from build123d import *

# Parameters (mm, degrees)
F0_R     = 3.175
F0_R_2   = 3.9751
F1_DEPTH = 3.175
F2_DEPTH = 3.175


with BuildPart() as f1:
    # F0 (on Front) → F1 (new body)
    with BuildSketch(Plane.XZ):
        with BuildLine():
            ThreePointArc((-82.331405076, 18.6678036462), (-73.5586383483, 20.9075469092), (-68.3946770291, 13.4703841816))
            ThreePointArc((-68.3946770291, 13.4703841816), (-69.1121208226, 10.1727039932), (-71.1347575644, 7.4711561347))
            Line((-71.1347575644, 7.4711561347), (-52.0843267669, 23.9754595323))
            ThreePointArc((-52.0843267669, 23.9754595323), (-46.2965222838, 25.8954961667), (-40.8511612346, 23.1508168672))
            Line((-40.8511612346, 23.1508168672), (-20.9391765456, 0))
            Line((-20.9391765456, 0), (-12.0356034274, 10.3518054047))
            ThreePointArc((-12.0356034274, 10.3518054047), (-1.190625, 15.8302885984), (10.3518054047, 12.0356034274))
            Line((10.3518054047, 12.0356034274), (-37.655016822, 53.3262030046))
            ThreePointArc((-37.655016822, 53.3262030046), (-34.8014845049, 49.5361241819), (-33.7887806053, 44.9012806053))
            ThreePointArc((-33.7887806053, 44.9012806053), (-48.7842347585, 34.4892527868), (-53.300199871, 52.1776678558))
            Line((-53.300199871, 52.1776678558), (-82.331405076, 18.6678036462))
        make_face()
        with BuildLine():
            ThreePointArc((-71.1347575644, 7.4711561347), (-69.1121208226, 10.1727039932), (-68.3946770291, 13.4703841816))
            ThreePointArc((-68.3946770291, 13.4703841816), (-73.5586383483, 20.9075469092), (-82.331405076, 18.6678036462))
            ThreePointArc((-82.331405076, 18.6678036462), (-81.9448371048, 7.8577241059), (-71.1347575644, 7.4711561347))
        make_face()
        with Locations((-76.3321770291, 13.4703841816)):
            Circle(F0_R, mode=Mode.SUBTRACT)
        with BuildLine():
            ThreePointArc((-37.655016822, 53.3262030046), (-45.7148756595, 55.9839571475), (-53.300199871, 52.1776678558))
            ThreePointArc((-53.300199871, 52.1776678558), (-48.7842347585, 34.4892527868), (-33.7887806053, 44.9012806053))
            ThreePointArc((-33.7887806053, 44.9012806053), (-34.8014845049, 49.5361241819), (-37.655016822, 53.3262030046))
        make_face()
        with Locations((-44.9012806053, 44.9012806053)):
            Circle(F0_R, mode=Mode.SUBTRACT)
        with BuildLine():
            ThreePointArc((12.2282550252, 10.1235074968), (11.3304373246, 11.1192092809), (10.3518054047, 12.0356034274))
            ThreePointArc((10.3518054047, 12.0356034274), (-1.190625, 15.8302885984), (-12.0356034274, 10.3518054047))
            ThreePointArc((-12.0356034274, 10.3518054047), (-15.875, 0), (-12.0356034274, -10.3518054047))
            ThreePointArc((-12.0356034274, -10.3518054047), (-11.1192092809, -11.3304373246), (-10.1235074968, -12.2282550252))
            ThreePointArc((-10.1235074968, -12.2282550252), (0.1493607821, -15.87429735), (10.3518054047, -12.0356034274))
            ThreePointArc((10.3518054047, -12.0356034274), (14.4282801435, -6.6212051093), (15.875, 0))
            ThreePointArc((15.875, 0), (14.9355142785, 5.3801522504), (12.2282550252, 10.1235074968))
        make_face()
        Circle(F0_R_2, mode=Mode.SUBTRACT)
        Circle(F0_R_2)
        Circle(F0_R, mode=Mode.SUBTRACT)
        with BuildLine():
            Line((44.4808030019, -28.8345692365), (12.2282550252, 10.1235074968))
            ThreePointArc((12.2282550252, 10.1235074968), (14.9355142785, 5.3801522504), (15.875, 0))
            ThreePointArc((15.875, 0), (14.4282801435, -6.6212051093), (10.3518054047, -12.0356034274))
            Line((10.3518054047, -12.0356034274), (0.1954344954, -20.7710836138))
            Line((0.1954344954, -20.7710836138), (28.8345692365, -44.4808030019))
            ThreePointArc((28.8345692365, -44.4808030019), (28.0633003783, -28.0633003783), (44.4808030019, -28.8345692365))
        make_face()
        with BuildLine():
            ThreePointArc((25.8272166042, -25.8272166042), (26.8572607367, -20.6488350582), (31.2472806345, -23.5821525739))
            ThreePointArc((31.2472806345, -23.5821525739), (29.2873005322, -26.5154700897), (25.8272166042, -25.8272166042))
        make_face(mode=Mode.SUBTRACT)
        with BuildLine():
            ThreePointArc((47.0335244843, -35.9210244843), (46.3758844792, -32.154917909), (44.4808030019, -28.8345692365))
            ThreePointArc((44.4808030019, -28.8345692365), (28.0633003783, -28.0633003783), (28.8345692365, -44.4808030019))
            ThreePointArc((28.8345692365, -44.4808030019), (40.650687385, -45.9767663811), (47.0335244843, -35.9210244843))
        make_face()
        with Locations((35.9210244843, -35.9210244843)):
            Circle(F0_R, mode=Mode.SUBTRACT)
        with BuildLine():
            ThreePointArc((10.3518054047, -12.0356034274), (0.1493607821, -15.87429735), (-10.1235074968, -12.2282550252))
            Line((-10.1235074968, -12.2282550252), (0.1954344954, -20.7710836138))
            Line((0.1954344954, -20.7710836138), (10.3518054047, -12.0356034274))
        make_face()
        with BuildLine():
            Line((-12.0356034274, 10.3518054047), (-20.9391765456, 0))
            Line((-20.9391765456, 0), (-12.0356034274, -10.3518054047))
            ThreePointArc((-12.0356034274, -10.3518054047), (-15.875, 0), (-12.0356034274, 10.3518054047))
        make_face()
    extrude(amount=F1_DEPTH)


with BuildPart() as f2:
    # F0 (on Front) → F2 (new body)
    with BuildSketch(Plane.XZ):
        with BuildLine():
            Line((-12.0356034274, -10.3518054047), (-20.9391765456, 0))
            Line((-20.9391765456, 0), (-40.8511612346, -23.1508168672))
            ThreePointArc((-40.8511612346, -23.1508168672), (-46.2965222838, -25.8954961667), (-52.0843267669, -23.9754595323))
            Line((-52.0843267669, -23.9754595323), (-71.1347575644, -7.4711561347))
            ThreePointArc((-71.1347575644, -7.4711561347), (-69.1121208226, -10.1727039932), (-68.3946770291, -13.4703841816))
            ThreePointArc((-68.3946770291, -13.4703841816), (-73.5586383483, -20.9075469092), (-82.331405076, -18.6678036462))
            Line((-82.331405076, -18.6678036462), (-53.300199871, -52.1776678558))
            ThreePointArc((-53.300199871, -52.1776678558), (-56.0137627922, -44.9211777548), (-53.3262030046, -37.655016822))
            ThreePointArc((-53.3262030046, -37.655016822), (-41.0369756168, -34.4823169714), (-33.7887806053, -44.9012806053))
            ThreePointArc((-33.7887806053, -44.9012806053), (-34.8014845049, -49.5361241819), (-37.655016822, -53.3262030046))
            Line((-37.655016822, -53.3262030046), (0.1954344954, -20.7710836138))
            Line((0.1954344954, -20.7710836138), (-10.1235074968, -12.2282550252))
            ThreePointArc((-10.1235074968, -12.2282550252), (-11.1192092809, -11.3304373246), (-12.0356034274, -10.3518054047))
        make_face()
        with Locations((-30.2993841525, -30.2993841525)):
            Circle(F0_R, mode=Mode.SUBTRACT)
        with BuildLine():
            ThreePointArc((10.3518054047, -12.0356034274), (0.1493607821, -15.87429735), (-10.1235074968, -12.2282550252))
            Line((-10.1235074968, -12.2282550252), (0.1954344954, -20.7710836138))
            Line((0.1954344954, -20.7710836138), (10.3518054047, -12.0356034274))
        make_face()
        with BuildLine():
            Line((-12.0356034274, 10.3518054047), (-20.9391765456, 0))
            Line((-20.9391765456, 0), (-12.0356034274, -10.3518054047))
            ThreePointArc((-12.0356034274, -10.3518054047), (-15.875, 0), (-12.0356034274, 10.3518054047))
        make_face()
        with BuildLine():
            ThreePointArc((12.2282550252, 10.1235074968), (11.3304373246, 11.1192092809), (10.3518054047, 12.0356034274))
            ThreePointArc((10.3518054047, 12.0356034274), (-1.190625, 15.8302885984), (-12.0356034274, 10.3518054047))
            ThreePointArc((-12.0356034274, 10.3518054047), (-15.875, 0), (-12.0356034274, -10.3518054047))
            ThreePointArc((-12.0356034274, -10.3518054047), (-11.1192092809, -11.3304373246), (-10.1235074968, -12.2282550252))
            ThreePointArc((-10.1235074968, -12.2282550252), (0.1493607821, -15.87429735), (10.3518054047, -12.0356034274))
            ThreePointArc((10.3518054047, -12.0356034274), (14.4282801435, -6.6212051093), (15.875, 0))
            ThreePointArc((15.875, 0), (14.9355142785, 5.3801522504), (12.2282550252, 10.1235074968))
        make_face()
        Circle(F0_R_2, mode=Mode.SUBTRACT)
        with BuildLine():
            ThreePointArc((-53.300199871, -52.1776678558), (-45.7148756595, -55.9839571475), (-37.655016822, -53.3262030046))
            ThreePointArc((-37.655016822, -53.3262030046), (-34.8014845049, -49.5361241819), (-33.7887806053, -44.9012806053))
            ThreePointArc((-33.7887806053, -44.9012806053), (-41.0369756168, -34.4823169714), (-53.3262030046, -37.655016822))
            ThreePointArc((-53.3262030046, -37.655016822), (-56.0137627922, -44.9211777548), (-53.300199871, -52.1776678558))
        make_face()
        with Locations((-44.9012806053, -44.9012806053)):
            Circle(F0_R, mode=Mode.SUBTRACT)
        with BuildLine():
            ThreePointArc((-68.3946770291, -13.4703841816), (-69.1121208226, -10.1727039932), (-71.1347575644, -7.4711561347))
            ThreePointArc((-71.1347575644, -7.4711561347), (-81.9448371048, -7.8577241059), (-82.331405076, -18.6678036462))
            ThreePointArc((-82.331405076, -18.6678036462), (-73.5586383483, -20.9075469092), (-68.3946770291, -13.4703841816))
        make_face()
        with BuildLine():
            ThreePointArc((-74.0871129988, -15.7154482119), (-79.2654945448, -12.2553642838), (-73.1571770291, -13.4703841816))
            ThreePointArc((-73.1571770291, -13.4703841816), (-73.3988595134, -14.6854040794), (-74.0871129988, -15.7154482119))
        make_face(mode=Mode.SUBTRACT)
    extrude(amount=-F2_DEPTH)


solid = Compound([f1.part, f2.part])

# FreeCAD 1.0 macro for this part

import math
import FreeCAD as App
import Part
import Sketcher

V = App.Vector
Q = App.Units.Quantity

doc = App.newDocument("Part")
body = doc.addObject("PartDesign::Body", "Body")

sketch1 = body.newObject("Sketcher::SketchObject", "Sketch")
sketch1.AttachmentSupport = (doc.getObject("XZ_Plane"), [""])
sketch1.MapMode = "FlatFace"
sketch1.addGeometry(Part.LineSegment(V(-71.1, 7.5, 0), V(-52.1, 24, 0)), False)
sketch1.addGeometry(Part.ArcOfCircle(Part.Circle(V(-46.9, 18, 0), V(0, 0, 1), 8), math.radians(41), math.radians(131)), False)
sketch1.addGeometry(Part.LineSegment(V(-40.9, 23.2, 0), V(-20.9, 0, 0)), False)
sketch1.addGeometry(Part.LineSegment(V(-20.9, 0, 0), V(-12, -10.4, 0)), False)
sketch1.addGeometry(Part.ArcOfCircle(Part.Circle(V(0, 0, 0), V(0, 0, 1), 15.9), math.radians(-139.3), math.radians(-129.62)), False)
sketch1.addGeometry(Part.LineSegment(V(-10.1, -12.2, 0), V(0.2, -20.8, 0)), False)
sketch1.addGeometry(Part.LineSegment(V(0.2, -20.8, 0), V(28.8, -44.5, 0)), False)
sketch1.addGeometry(Part.ArcOfCircle(Part.Circle(V(35.9, -35.9, 0), V(0, 0, 1), 11.1), math.radians(-130), math.radians(0)), False)
sketch1.addGeometry(Part.ArcOfCircle(Part.Circle(V(35.9, -35.9, 0), V(0, 0, 1), 11.1), math.radians(0), math.radians(40)), False)
sketch1.addGeometry(Part.LineSegment(V(44.5, -28.8, 0), V(12.2, 10.1, 0)), False)
sketch1.addGeometry(Part.ArcOfCircle(Part.Circle(V(0, 0, 0), V(0, 0, 1), 15.9), math.radians(39.62), math.radians(49.3)), False)
sketch1.addGeometry(Part.LineSegment(V(10.4, 12, 0), V(-37.7, 53.3, 0)), False)
sketch1.addGeometry(Part.ArcOfCircle(Part.Circle(V(-44.9, 44.9, 0), V(0, 0, 1), 11.1), math.radians(49), math.radians(139)), False)
sketch1.addGeometry(Part.LineSegment(V(-53.3, 52.2, 0), V(-82.3, 18.7, 0)), False)
sketch1.addGeometry(Part.ArcOfCircle(Part.Circle(V(-76.3, 13.5, 0), V(0, 0, 1), 7.9), math.radians(139), math.radians(311)), False)
sketch1.addGeometry(Part.Circle(V(35.9, -35.9, 0), V(0, 0, 1), 3.2), False)
sketch1.addGeometry(Part.ArcOfCircle(Part.Circle(V(28.1, -23.6, 0), V(0, 0, 1), 3.2), math.radians(-135), math.radians(0)), False)
sketch1.addGeometry(Part.ArcOfCircle(Part.Circle(V(28.1, -23.6, 0), V(0, 0, 1), 3.2), math.radians(0), math.radians(225)), False)
sketch1.addGeometry(Part.Circle(V(0, 0, 0), V(0, 0, 1), 3.2), False)
sketch1.addGeometry(Part.Circle(V(-76.3, 13.5, 0), V(0, 0, 1), 3.2), False)
sketch1.addGeometry(Part.Circle(V(-44.9, 44.9, 0), V(0, 0, 1), 3.2), False)
sketch1.addConstraint(Sketcher.Constraint("Tangent", 0, 2, 1, 2))
sketch1.addConstraint(Sketcher.Constraint("Tangent", 1, 1, 2, 1))
sketch1.addConstraint(Sketcher.Constraint("Coincident", 2, 2, 3, 1))
sketch1.addConstraint(Sketcher.Constraint("Tangent", 3, 2, 4, 1))
sketch1.addConstraint(Sketcher.Constraint("Tangent", 4, 2, 5, 1))
sketch1.addConstraint(Sketcher.Constraint("Coincident", 5, 2, 6, 1))
sketch1.addConstraint(Sketcher.Constraint("Tangent", 6, 2, 7, 1))
sketch1.addConstraint(Sketcher.Constraint("Tangent", 7, 2, 8, 1))
sketch1.addConstraint(Sketcher.Constraint("Tangent", 8, 2, 9, 1))
sketch1.addConstraint(Sketcher.Constraint("Tangent", 9, 2, 10, 1))
sketch1.addConstraint(Sketcher.Constraint("Tangent", 10, 2, 11, 1))
sketch1.addConstraint(Sketcher.Constraint("Tangent", 11, 2, 12, 1))
sketch1.addConstraint(Sketcher.Constraint("Tangent", 12, 2, 13, 1))
sketch1.addConstraint(Sketcher.Constraint("Tangent", 13, 2, 14, 1))
sketch1.addConstraint(Sketcher.Constraint("Tangent", 14, 2, 0, 1))
sketch1.addConstraint(Sketcher.Constraint("Tangent", 16, 1, 17, 2))
sketch1.addConstraint(Sketcher.Constraint("Coincident", 17, 1, 16, 2))
sketch1.addConstraint(Sketcher.Constraint("Coincident", 4, 3, -1, 1))
sketch1.addConstraint(Sketcher.Constraint("Coincident", 10, 3, -1, 1))
sketch1.addConstraint(Sketcher.Constraint("Coincident", 18, 3, -1, 1))
sketch1.addConstraint(Sketcher.Constraint("Coincident", 15, 3, 7, 3))
sketch1.addConstraint(Sketcher.Constraint("Coincident", 19, 3, 14, 3))
sketch1.addConstraint(Sketcher.Constraint("Coincident", 20, 3, 12, 3))
sketch1.addConstraint(Sketcher.Constraint("Equal", 7, 8))
sketch1.addConstraint(Sketcher.Constraint("Equal", 4, 10))
sketch1.addConstraint(Sketcher.Constraint("Equal", 8, 12))
sketch1.addConstraint(Sketcher.Constraint("Equal", 15, 16))
sketch1.addConstraint(Sketcher.Constraint("Equal", 17, 18))
sketch1.addConstraint(Sketcher.Constraint("Equal", 18, 19))
sketch1.addConstraint(Sketcher.Constraint("Equal", 19, 20))
sketch1.addConstraint(Sketcher.Constraint("PointOnObject", 2, 2, -1))
sketch1.addConstraint(Sketcher.Constraint("Parallel", 2, 3))
sketch1.addConstraint(Sketcher.Constraint("Parallel", 5, 6))
sketch1.addConstraint(Sketcher.Constraint("Horizontal", 15, 3, 7, 2))
sketch1.addConstraint(Sketcher.Constraint("Horizontal", 16, 3, 17, 1))
sketch1.addConstraint(Sketcher.Constraint("Diameter", 15, Q("0.25 in")))
sketch1.addConstraint(Sketcher.Constraint("Radius", 1, Q("0.313 in")))
sketch1.addConstraint(Sketcher.Constraint("Radius", 4, Q("0.625 in")))
sketch1.addConstraint(Sketcher.Constraint("Radius", 7, Q("0.4375 in")))
sketch1.addConstraint(Sketcher.Constraint("Radius", 14, Q("0.3125 in")))
sketch1.addConstraint(Sketcher.Constraint("DistanceX", 12, 2, -1, 1, Q("53.3002 mm")))
sketch1.addConstraint(Sketcher.Constraint("DistanceX", 14, 3, 7, 3, Q("112.253202 mm")))
sketch1.addConstraint(Sketcher.Constraint("Distance", 6, Q("37.179979 mm")))
sketch1.addConstraint(Sketcher.Constraint("DistanceX", 1, 3, -1, 1, Q("46.878591 mm")))
sketch1.addConstraint(Sketcher.Constraint("DistanceX", 12, 3, -1, 1, Q("44.901281 mm")))
sketch1.addConstraint(Sketcher.Constraint("DistanceY", -1, 1, 12, 3, Q("44.901281 mm")))
sketch1.addConstraint(Sketcher.Constraint("DistanceX", -1, 1, 16, 3, Q("28.072281 mm")))
sketch1.addConstraint(Sketcher.Constraint("DistanceY", -1, 1, 0, 2, Q("23.97546 mm")))
sketch1.addConstraint(Sketcher.Constraint("DistanceX", -1, 1, 6, 2, Q("28.834569 mm")))
sketch1.addConstraint(Sketcher.Constraint("DistanceY", 8, 2, -1, 1, Q("28.834569 mm")))
sketch1.addConstraint(Sketcher.Constraint("DistanceY", 7, 3, 16, 3, Q("12.338872 mm")))
sketch1.addConstraint(Sketcher.Constraint("DistanceX", -1, 1, 16, 1, Q("25.827217 mm")))
pad1 = body.newObject("PartDesign::Pad", "Pad")
pad1.Profile = sketch1
pad1.Length = Q("0.125 in")
body2 = doc.addObject("PartDesign::Body", "Body001")

sketch2 = body2.newObject("Sketcher::SketchObject", "Sketch001")
sketch2.AttachmentSupport = (doc.getObject("XZ_Plane001"), [""])
sketch2.MapMode = "FlatFace"
sketch2.addGeometry(Part.LineSegment(V(-20.939177, 0, 0), V(-40.851161, -23.150817, 0)), False)
sketch2.addGeometry(Part.ArcOfCircle(Part.Circle(V(-46.878591, -17.966633, 0), V(0, 0, 1), 7.9502), math.radians(-130.903956), math.radians(-40.698778)), False)
sketch2.addGeometry(Part.LineSegment(V(-52.084327, -23.97546, 0), V(-71.134758, -7.471156, 0)), False)
sketch2.addGeometry(Part.ArcOfCircle(Part.Circle(V(-76.332177, -13.470384, 0), V(0, 0, 1), 7.9375), math.radians(49.096044), math.radians(220.903956)), False)
sketch2.addGeometry(Part.LineSegment(V(-82.331405, -18.667804, 0), V(-53.3002, -52.177668, 0)), False)
sketch2.addGeometry(Part.ArcOfCircle(Part.Circle(V(-44.901281, -44.901281, 0), V(0, 0, 1), 11.1125), math.radians(-139.096044), math.radians(-49.301222)), False)
sketch2.addGeometry(Part.LineSegment(V(-37.655017, -53.326203, 0), V(10.351805, -12.035603, 0)), False)
sketch2.addGeometry(Part.ArcOfCircle(Part.Circle(V(0, 0, 0), V(0, 0, 1), 15.875), math.radians(-49.301222), math.radians(0)), False)
sketch2.addGeometry(Part.ArcOfCircle(Part.Circle(V(0, 0, 0), V(0, 0, 1), 15.875), math.radians(0), math.radians(39.620621)), False)
sketch2.addGeometry(Part.ArcOfCircle(Part.Circle(V(0, 0, 0), V(0, 0, 1), 15.875), math.radians(39.620621), math.radians(49.301222)), False)
sketch2.addGeometry(Part.ArcOfCircle(Part.Circle(V(0, 0, 0), V(0, 0, 1), 15.875), math.radians(49.301222), math.radians(139.301222)), False)
sketch2.addGeometry(Part.LineSegment(V(-12.035603, 10.351805, 0), V(-20.939177, 0, 0)), False)
sketch2.addGeometry(Part.Circle(V(-44.901281, -44.901281, 0), V(0, 0, 1), 3.175), False)
sketch2.addGeometry(Part.Circle(V(-30.299384, -30.299384, 0), V(0, 0, 1), 3.175), False)
sketch2.addGeometry(Part.ArcOfCircle(Part.Circle(V(-76.332177, -13.470384, 0), V(0, 0, 1), 3.175), math.radians(-45), math.radians(0)), False)
sketch2.addGeometry(Part.ArcOfCircle(Part.Circle(V(-76.332177, -13.470384, 0), V(0, 0, 1), 3.175), math.radians(0), math.radians(315)), False)
sketch2.addGeometry(Part.Circle(V(0, 0, 0), V(0, 0, 1), 3.9751), False)
sketch2.addConstraint(Sketcher.Constraint("Coincident", 0, 2, 1, 2))
sketch2.addConstraint(Sketcher.Constraint("Coincident", 1, 1, 2, 1))
sketch2.addConstraint(Sketcher.Constraint("Coincident", 2, 2, 3, 1))
sketch2.addConstraint(Sketcher.Constraint("Coincident", 3, 2, 4, 1))
sketch2.addConstraint(Sketcher.Constraint("Coincident", 4, 2, 5, 1))
sketch2.addConstraint(Sketcher.Constraint("Coincident", 5, 2, 6, 1))
sketch2.addConstraint(Sketcher.Constraint("Coincident", 6, 2, 7, 1))
sketch2.addConstraint(Sketcher.Constraint("Coincident", 7, 2, 8, 1))
sketch2.addConstraint(Sketcher.Constraint("Coincident", 8, 2, 9, 1))
sketch2.addConstraint(Sketcher.Constraint("Coincident", 9, 2, 10, 1))
sketch2.addConstraint(Sketcher.Constraint("Coincident", 10, 2, 11, 1))
sketch2.addConstraint(Sketcher.Constraint("Coincident", 11, 2, 0, 1))
sketch2.addConstraint(Sketcher.Constraint("Coincident", 14, 1, 15, 2))
sketch2.addConstraint(Sketcher.Constraint("Coincident", 15, 1, 14, 2))
sketch2.addConstraint(Sketcher.Constraint("Coincident", 7, 3, -1, 1))
sketch2.addConstraint(Sketcher.Constraint("Coincident", 8, 3, -1, 1))
sketch2.addConstraint(Sketcher.Constraint("Coincident", 9, 3, -1, 1))
sketch2.addConstraint(Sketcher.Constraint("Coincident", 10, 3, -1, 1))
sketch2.addConstraint(Sketcher.Constraint("Coincident", 16, 3, -1, 1))
sketch2.addConstraint(Sketcher.Constraint("Coincident", 12, 3, 5, 3))
sketch2.addConstraint(Sketcher.Constraint("Coincident", 14, 3, 3, 3))
sketch2.addConstraint(Sketcher.Constraint("PointOnObject", 7, 2, -1))
sketch2.addConstraint(Sketcher.Constraint("PointOnObject", 11, 2, -1))
sketch2.addConstraint(Sketcher.Constraint("Diameter", 12, Q("0.25 in")))
sketch2.addConstraint(Sketcher.Constraint("Diameter", 13, Q("0.25 in")))
sketch2.addConstraint(Sketcher.Constraint("Diameter", 16, Q("0.313 in")))
sketch2.addConstraint(Sketcher.Constraint("Radius", 1, Q("0.313 in")))
sketch2.addConstraint(Sketcher.Constraint("Radius", 3, Q("0.3125 in")))
sketch2.addConstraint(Sketcher.Constraint("Radius", 5, Q("0.4375 in")))
sketch2.addConstraint(Sketcher.Constraint("Radius", 7, Q("0.625 in")))
sketch2.addConstraint(Sketcher.Constraint("Radius", 14, Q("0.125 in")))
sketch2.addConstraint(Sketcher.Constraint("Radius", 15, Q("0.125 in")))
sketch2.addConstraint(Sketcher.Constraint("DistanceX", 4, 2, -1, 1, Q("53.3002 mm")))
sketch2.addConstraint(Sketcher.Constraint("DistanceY", 13, 3, 14, 3, Q("16.829 mm")))
sketch2.addConstraint(Sketcher.Constraint("DistanceX", 1, 3, -1, 1, Q("46.878591 mm")))
sketch2.addConstraint(Sketcher.Constraint("DistanceX", 5, 3, -1, 1, Q("44.901281 mm")))
sketch2.addConstraint(Sketcher.Constraint("DistanceY", 5, 3, -1, 1, Q("44.901281 mm")))
sketch2.addConstraint(Sketcher.Constraint("DistanceX", 0, 2, -1, 1, Q("40.851161 mm")))
sketch2.addConstraint(Sketcher.Constraint("DistanceY", 1, 1, -1, 1, Q("23.97546 mm")))
sketch2.addConstraint(Sketcher.Constraint("DistanceY", 14, 1, -1, 1, Q("15.715448 mm")))
sketch2.addConstraint(Sketcher.Constraint("DistanceY", 1, 3, 3, 3, Q("4.496249 mm")))
sketch2.addConstraint(Sketcher.Constraint("DistanceX", 3, 3, 2, 2, Q("5.197419 mm")))
sketch2.addConstraint(Sketcher.Constraint("DistanceX", 2, 2, 1, 1, Q("19.050431 mm")))
sketch2.addConstraint(Sketcher.Constraint("DistanceX", 3, 2, 3, 3, Q("5.999228 mm")))
sketch2.addConstraint(Sketcher.Constraint("DistanceY", 4, 2, 0, 2, Q("29.026851 mm")))
sketch2.addConstraint(Sketcher.Constraint("DistanceY", 5, 2, 13, 3, Q("23.026819 mm")))
sketch2.addConstraint(Sketcher.Constraint("DistanceX", 9, 2, 8, 2, Q("1.87645 mm")))
sketch2.addConstraint(Sketcher.Constraint("DistanceY", 15, 1, 2, 2, Q("5.999228 mm")))
sketch2.addConstraint(Sketcher.Constraint("Distance", 0, Q("30.536003 mm")))
sketch2.addConstraint(Sketcher.Constraint("Distance", 6, Q("63.321154 mm")))
sketch2.addConstraint(Sketcher.Constraint("Distance", 11, Q("13.654065 mm")))
sketch2.addConstraint(Sketcher.Constraint("DistanceX", 13, 3, -1, 1, Q("30.299384 mm")))
sketch2.addConstraint(Sketcher.Constraint("DistanceX", -1, 1, 8, 2, Q("12.228255 mm")))
pad2 = body2.newObject("PartDesign::Pad", "Pad001")
pad2.Profile = sketch2
pad2.Length = Q("0.125 in")
pad2.Reversed = True

doc.recompute()
